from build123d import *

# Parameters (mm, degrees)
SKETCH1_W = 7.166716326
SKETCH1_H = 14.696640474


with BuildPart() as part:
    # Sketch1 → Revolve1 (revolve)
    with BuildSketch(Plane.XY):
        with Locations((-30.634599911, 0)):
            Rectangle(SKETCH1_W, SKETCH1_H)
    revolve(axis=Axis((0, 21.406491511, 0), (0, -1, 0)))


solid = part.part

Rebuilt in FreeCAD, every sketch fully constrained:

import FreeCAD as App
import Part
import Sketcher

V = App.Vector
Q = App.Units.Quantity


def add_polygon(sketch, points):
    """Adds a closed chain of lines whose ends are joined by coincident constraints."""
    first, n = sketch.GeometryCount, len(points)
    for a, b in zip(points, points[1:] + points[:1]):
        sketch.addGeometry(Part.LineSegment(App.Vector(*a, 0), App.Vector(*b, 0)), False)
    for i in range(n):
        sketch.addConstraint(Sketcher.Constraint("Coincident", first + i, 2, first + (i + 1) % n, 1))

doc = App.newDocument("Part")
body = doc.addObject("PartDesign::Body", "Body")

# Sketch on XY plane
sketch1 = body.newObject("Sketcher::SketchObject", "Sketch")
sketch1.AttachmentSupport = (doc.getObject("XY_Plane"), [""])
sketch1.MapMode = "FlatFace"
add_polygon(sketch1, [(-34.217958, 7.34832), (-34.217958, -7.34832), (-27.051242, -7.34832), (-27.051242, 7.34832)])  # lines 0-3
sketch1.addConstraint([
    Sketcher.Constraint("Vertical", 0),
    Sketcher.Constraint("Horizontal", 1),
    Sketcher.Constraint("Vertical", 2),
    Sketcher.Constraint("Horizontal", 3),
    Sketcher.Constraint("DistanceY", 0, 2, 0, 1, Q("14.69664 mm")),
    Sketcher.Constraint("DistanceX", 1, 1, 1, 2, Q("7.166716 mm")),
    Sketcher.Constraint("DistanceX", 0, 2, -1, 1, Q("34.217958 mm")),
    Sketcher.Constraint("DistanceY", 0, 2, -1, 1, Q("7.34832 mm")),
])
revolution = body.newObject("PartDesign::Revolution", "Revolution")
revolution.Profile = sketch1
revolution.ReferenceAxis = (sketch1, ["V_Axis"])
revolution.Angle = 360

doc.recompute()
